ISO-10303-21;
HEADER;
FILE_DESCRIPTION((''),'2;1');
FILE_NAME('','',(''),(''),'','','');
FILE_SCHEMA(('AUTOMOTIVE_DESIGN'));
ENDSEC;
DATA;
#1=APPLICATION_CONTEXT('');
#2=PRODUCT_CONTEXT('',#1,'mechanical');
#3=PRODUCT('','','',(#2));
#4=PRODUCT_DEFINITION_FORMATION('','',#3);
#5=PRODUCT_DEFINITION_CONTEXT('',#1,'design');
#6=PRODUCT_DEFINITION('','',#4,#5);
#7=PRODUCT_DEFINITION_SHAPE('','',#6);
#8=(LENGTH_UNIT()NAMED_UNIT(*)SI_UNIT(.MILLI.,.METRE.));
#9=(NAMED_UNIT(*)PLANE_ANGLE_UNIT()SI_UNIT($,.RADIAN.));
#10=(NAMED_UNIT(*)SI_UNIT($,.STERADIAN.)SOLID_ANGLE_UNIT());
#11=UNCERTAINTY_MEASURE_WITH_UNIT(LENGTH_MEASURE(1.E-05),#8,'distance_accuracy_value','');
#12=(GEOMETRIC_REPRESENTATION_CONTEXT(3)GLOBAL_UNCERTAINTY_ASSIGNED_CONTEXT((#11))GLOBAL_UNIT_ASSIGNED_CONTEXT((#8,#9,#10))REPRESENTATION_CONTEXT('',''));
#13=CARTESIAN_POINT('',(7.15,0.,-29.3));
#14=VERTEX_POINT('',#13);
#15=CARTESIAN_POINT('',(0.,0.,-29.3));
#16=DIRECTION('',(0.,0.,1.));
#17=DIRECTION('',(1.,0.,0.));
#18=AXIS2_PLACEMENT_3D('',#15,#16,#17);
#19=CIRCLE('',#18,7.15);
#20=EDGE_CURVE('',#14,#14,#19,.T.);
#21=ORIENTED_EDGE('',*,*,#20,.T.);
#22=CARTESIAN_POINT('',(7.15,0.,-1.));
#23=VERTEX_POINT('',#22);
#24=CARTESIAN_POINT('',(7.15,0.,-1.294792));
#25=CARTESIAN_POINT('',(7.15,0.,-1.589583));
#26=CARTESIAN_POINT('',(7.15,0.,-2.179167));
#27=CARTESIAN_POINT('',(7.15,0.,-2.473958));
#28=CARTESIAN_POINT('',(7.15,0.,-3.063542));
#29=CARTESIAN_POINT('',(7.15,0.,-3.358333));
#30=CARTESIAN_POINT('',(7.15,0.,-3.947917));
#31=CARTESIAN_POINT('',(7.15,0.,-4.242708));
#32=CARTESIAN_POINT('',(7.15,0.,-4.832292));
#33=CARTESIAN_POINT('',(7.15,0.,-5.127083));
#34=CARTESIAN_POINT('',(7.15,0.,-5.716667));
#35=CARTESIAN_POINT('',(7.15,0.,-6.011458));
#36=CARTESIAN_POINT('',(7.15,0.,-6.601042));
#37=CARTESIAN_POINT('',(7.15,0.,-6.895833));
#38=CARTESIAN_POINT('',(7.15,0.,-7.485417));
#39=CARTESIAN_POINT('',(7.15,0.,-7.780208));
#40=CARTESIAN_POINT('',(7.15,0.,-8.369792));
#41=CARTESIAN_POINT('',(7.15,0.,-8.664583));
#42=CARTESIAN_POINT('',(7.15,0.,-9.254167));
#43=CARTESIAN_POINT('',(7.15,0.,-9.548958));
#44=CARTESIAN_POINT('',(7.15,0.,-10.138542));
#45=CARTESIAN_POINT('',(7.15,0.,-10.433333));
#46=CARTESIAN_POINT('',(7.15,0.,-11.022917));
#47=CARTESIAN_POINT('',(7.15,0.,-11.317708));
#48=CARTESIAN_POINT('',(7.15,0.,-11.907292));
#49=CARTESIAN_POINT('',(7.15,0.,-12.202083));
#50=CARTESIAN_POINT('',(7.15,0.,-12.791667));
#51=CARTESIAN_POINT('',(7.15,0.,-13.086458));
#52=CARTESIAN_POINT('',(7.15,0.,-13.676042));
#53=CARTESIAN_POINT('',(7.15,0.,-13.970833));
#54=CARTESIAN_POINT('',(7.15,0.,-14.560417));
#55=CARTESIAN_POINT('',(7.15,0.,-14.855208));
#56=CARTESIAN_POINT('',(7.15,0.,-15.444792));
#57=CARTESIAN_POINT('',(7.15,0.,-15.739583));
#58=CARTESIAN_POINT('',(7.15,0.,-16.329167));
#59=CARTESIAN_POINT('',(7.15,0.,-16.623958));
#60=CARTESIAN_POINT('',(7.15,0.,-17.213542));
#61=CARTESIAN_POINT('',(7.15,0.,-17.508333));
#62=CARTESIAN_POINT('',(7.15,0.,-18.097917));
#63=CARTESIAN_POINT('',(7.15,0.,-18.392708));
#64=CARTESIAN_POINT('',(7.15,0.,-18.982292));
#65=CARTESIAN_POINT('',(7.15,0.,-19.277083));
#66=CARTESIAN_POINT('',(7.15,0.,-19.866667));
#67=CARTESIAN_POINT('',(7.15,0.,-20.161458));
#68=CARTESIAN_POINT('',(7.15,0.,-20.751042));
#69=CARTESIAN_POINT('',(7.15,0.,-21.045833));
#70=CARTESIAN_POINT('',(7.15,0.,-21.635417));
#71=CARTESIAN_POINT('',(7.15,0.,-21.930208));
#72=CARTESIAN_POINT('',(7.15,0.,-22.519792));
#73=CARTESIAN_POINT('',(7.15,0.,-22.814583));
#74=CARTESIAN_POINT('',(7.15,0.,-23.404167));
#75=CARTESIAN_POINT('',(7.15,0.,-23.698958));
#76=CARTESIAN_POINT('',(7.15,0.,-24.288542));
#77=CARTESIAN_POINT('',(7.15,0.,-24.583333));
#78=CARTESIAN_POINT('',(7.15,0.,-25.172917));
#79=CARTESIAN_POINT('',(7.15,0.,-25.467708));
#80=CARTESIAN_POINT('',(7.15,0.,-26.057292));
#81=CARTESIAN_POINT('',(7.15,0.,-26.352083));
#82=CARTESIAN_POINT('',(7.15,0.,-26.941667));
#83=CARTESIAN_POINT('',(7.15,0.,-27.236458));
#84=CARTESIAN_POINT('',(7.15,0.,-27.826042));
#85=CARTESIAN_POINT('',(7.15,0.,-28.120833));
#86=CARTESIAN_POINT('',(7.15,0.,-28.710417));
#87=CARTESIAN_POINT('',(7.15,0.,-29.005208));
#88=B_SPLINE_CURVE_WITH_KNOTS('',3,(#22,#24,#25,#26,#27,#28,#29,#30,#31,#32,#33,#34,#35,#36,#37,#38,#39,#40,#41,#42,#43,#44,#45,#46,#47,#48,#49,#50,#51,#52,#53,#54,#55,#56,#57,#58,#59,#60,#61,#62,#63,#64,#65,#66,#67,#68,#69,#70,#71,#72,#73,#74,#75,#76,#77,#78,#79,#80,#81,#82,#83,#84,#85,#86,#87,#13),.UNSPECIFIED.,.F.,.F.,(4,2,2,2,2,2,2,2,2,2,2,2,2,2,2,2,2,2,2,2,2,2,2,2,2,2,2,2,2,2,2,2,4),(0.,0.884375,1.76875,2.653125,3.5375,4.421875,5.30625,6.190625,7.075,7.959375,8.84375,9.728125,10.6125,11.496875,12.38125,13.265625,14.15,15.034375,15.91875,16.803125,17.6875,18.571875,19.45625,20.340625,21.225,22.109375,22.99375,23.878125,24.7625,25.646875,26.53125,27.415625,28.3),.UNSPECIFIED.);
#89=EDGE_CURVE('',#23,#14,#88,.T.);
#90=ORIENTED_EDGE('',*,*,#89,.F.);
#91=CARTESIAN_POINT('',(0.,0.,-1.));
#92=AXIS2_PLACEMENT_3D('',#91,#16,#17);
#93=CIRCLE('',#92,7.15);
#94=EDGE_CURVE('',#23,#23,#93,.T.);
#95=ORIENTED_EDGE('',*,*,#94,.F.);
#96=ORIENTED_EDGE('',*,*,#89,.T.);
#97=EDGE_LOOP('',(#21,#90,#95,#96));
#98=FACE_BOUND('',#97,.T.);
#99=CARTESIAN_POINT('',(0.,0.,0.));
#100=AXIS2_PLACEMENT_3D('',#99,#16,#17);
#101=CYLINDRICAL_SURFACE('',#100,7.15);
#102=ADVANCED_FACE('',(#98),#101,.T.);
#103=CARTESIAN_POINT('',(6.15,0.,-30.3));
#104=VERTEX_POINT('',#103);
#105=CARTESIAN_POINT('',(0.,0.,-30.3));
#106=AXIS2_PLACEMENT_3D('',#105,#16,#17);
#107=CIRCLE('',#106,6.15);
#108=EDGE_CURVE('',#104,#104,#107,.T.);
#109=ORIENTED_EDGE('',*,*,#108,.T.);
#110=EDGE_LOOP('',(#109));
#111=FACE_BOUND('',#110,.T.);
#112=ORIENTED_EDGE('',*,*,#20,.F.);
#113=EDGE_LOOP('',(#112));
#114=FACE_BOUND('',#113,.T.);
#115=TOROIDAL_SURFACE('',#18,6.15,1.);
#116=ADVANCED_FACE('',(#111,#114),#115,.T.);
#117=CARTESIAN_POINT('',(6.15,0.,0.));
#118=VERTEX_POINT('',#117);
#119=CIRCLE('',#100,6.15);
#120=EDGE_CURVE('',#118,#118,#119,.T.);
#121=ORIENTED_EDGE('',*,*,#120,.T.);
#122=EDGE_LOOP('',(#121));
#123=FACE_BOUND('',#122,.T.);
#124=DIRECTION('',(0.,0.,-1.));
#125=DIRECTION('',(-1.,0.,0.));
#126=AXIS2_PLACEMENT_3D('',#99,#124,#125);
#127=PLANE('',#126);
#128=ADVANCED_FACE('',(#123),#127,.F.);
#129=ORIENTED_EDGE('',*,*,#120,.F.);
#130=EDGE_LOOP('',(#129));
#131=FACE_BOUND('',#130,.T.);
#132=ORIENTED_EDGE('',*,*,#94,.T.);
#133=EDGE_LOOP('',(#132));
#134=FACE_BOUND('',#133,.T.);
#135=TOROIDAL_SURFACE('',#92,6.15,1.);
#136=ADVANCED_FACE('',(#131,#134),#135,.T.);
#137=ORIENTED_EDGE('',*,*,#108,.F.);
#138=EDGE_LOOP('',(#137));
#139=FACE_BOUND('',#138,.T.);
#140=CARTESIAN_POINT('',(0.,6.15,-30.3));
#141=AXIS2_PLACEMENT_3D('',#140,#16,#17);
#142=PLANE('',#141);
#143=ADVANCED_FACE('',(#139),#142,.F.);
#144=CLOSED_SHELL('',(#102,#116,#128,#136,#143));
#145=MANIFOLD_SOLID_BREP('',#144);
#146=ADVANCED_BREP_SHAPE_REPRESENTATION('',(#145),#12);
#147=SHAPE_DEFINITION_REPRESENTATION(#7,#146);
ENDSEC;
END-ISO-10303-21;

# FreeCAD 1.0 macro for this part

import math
import FreeCAD as App
import Part
import Sketcher

V = App.Vector
Q = App.Units.Quantity

doc = App.newDocument("Part")
body = doc.addObject("PartDesign::Body", "Body")

# Sketch on YZ plane
sketch1 = doc.addObject("Sketcher::SketchObject", "Sketch")
body.addObject(sketch1)
sketch1.AttachmentSupport = (doc.YZ_Plane, [""])
sketch1.MapMode = "FlatFace"
sketch1.addGeometry(Part.LineSegment(V(6.2, 0, 0), V(0, 0, 0)), False)
sketch1.addGeometry(Part.LineSegment(V(0, 0, 0), V(0, -30.3, 0)), False)
sketch1.addGeometry(Part.LineSegment(V(0, -30.3, 0), V(6.2, -30.3, 0)), False)
sketch1.addGeometry(Part.ArcOfCircle(Part.Circle(V(6.1, -29.3, 0), V(0, 0, 1), 1), math.radians(-90), math.radians(0)), False)
sketch1.addGeometry(Part.LineSegment(V(7.2, -29.3, 0), V(7.2, -1, 0)), False)
sketch1.addGeometry(Part.ArcOfCircle(Part.Circle(V(6.1, -1, 0), V(0, 0, 1), 1), math.radians(0), math.radians(90)), False)
sketch1.addConstraint(Sketcher.Constraint("Coincident", 0, 2, 1, 1))
sketch1.addConstraint(Sketcher.Constraint("Coincident", 1, 2, 2, 1))
sketch1.addConstraint(Sketcher.Constraint("Tangent", 2, 2, 3, 1))
sketch1.addConstraint(Sketcher.Constraint("Tangent", 3, 2, 4, 1))
sketch1.addConstraint(Sketcher.Constraint("Tangent", 4, 2, 5, 1))
sketch1.addConstraint(Sketcher.Constraint("Tangent", 5, 2, 0, 1))
sketch1.addConstraint(Sketcher.Constraint("Horizontal", 0))
sketch1.addConstraint(Sketcher.Constraint("Vertical", 1))
sketch1.addConstraint(Sketcher.Constraint("Horizontal", 2))
sketch1.addConstraint(Sketcher.Constraint("Vertical", 4))
sketch1.addConstraint(Sketcher.Constraint("Coincident", 0, 2, -1, 1))
sketch1.addConstraint(Sketcher.Constraint("Equal", 3, 5))
sketch1.addConstraint(Sketcher.Constraint("Radius", 3, Q("1 mm")))
sketch1.addConstraint(Sketcher.Constraint("DistanceY", 1, 2, 1, 1, Q("30.3 mm")))
sketch1.addConstraint(Sketcher.Constraint("DistanceX", 0, 2, 0, 1, Q("6.15 mm")))
revolution = doc.addObject("PartDesign::Revolution", "Revolution")
body.addObject(revolution)
revolution.Profile = sketch1
revolution.ReferenceAxis = (sketch1, ["V_Axis"])
revolution.Angle = 360

doc.recompute()
